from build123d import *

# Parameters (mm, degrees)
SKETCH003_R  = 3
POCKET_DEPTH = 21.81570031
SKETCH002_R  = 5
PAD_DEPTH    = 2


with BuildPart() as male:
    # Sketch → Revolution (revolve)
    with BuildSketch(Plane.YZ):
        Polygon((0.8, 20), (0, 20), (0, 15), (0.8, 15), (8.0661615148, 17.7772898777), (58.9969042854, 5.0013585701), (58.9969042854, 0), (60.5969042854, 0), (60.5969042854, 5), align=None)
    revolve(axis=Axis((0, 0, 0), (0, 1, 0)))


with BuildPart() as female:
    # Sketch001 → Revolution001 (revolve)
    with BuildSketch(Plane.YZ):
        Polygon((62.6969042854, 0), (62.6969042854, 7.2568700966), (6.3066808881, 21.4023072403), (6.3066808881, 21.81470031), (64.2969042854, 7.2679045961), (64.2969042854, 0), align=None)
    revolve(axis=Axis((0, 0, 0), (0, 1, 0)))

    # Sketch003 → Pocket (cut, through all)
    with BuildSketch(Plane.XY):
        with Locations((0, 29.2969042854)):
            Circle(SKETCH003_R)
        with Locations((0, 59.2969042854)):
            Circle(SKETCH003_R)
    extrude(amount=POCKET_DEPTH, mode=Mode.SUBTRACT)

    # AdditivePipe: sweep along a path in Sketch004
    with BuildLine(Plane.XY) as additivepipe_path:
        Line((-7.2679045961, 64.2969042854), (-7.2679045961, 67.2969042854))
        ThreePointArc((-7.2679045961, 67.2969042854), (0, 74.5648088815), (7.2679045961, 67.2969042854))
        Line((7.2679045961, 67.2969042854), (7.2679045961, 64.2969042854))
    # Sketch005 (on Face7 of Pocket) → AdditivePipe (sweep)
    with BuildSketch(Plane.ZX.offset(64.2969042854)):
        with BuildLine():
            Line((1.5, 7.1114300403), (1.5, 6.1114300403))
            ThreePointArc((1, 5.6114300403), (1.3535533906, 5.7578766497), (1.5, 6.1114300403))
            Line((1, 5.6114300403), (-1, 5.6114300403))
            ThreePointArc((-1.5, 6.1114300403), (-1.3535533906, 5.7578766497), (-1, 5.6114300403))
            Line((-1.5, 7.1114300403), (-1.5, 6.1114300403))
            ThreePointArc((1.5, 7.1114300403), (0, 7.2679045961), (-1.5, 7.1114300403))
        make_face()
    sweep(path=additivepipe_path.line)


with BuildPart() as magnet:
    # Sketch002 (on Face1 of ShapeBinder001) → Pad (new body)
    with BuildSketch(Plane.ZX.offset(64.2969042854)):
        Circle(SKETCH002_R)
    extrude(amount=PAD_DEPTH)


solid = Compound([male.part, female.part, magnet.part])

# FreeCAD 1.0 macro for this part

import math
import FreeCAD as App
import Part
import Sketcher

V = App.Vector

doc = App.newDocument("Part")
body = doc.addObject("PartDesign::Body", "Body")

# Sketch on YZ plane
sketch1 = doc.addObject("Sketcher::SketchObject", "Sketch")
body.addObject(sketch1)
sketch1.AttachmentSupport = (doc.YZ_Plane, [""])
sketch1.MapMode = "FlatFace"
sketch1.addGeometry([
    Part.LineSegment(V(0.8, 20, 0), V(0, 20, 0)),  # 0
    Part.LineSegment(V(0, 20, 0), V(0, 15, 0)),  # 1
    Part.LineSegment(V(0, 15, 0), V(0.8, 15, 0)),  # 2
    Part.LineSegment(V(0.8, 15, 0), V(8.1, 17.8, 0)),  # 3
    Part.LineSegment(V(8.1, 17.8, 0), V(59, 5, 0)),  # 4
    Part.LineSegment(V(59, 5, 0), V(59, 0, 0)),  # 5
    Part.LineSegment(V(59, 0, 0), V(60.6, 0, 0)),  # 6
    Part.LineSegment(V(60.6, 0, 0), V(60.6, 5, 0)),  # 7
    Part.LineSegment(V(60.6, 5, 0), V(0.8, 20, 0)),  # 8
], False)
sketch1.addConstraint([
    Sketcher.Constraint("Coincident", 0, 2, 1, 1),
    Sketcher.Constraint("Coincident", 1, 2, 2, 1),
    Sketcher.Constraint("Coincident", 2, 2, 3, 1),
    Sketcher.Constraint("Coincident", 3, 2, 4, 1),
    Sketcher.Constraint("Coincident", 4, 2, 5, 1),
    Sketcher.Constraint("Coincident", 5, 2, 6, 1),
    Sketcher.Constraint("Coincident", 6, 2, 7, 1),
    Sketcher.Constraint("Coincident", 7, 2, 8, 1),
    Sketcher.Constraint("Coincident", 8, 2, 0, 1),
    Sketcher.Constraint("Horizontal", 0),
    Sketcher.Constraint("Vertical", 1),
    Sketcher.Constraint("Horizontal", 2),
    Sketcher.Constraint("Vertical", 5),
    Sketcher.Constraint("Horizontal", 6),
    Sketcher.Constraint("Vertical", 7),
    Sketcher.Constraint("PointOnObject", 0, 2, -2),
    Sketcher.Constraint("PointOnObject", 5, 2, -1),
    Sketcher.Constraint("Parallel", 4, 8),
    Sketcher.Constraint("Vertical", 2, 2, 8, 2),
    Sketcher.Constraint("Equal", 1, 7),
    Sketcher.Constraint("DistanceY", 1, 2, 1, 1, 5.0),
    Sketcher.Constraint("DistanceX", 0, 2, 0, 1, 0.8),
    Sketcher.Constraint("DistanceX", 6, 1, 6, 2, 1.6),
    Sketcher.Constraint("DistanceY", -1, 1, 0, 2, 20.0),
    Sketcher.Constraint("DistanceY", 5, 2, 5, 1, 5.001359),
    Sketcher.Constraint("DistanceX", -1, 1, 3, 2, 8.066162),
    Sketcher.Constraint("DistanceY", -1, 1, 3, 2, 17.77729),
])
revolution = doc.addObject("PartDesign::Revolution", "Revolution")
body.addObject(revolution)
revolution.Profile = sketch1
revolution.ReferenceAxis = (sketch1, ["H_Axis"])
revolution.Angle = 360
body2 = doc.addObject("PartDesign::Body", "Body001")

# Sketch on YZ plane
sketch2 = doc.addObject("Sketcher::SketchObject", "Sketch001")
body2.addObject(sketch2)
sketch2.AttachmentSupport = (doc.getObject("YZ_Plane001"), [""])
sketch2.MapMode = "FlatFace"
sketch2.addGeometry([
    Part.LineSegment(V(62.696904, 7.25687, 0), V(62.696904, 0, 0)),  # 0
    Part.LineSegment(V(62.696904, 0, 0), V(64.296904, 0, 0)),  # 1
    Part.LineSegment(V(64.296904, 0, 0), V(64.296904, 7.267905, 0)),  # 2
    Part.LineSegment(V(64.296904, 7.267905, 0), V(6.306681, 21.8147, 0)),  # 3
    Part.LineSegment(V(6.306681, 21.8147, 0), V(6.306681, 21.402307, 0)),  # 4
    Part.LineSegment(V(6.306681, 21.402307, 0), V(62.696904, 7.25687, 0)),  # 5
], False)
sketch2.addConstraint([
    Sketcher.Constraint("Coincident", 0, 2, 1, 1),
    Sketcher.Constraint("Coincident", 1, 2, 2, 1),
    Sketcher.Constraint("Coincident", 2, 2, 3, 1),
    Sketcher.Constraint("Coincident", 3, 2, 4, 1),
    Sketcher.Constraint("Coincident", 4, 2, 5, 1),
    Sketcher.Constraint("Coincident", 5, 2, 0, 1),
    Sketcher.Constraint("Vertical", 0),
    Sketcher.Constraint("Horizontal", 1),
    Sketcher.Constraint("Vertical", 2),
    Sketcher.Constraint("Vertical", 4),
    Sketcher.Constraint("PointOnObject", 0, 2, -1),
    Sketcher.Constraint("DistanceX", 1, 1, 1, 2, 1.6),
    Sketcher.Constraint("DistanceY", 0, 2, 0, 1, 7.25687),
    Sketcher.Constraint("DistanceY", -1, 1, 3, 2, 21.8147),
    Sketcher.Constraint("DistanceY", 2, 1, 2, 2, 7.267905),
    Sketcher.Constraint("DistanceY", 4, 2, 4, 1, 0.412393),
    Sketcher.Constraint("DistanceX", -1, 1, 3, 2, 6.306681),
    Sketcher.Constraint("Distance", 3, 59.786916),
])
revolution2 = doc.addObject("PartDesign::Revolution", "Revolution001")
body2.addObject(revolution2)
revolution2.Profile = sketch2
revolution2.ReferenceAxis = (sketch2, ["H_Axis"])
revolution2.Angle = 360

# Sketch on XY plane
sketch3 = doc.addObject("Sketcher::SketchObject", "Sketch002")
body2.addObject(sketch3)
sketch3.AttachmentSupport = (doc.getObject("XY_Plane001"), [""])
sketch3.MapMode = "FlatFace"
sketch3.addGeometry([
    Part.Circle(V(0, 29.3, 0), V(0, 0, 1), 3),
    Part.Circle(V(0, 59.3, 0), V(0, 0, 1), 3),
], False)
sketch3.addConstraint([
    Sketcher.Constraint("Equal", 0, 1),
    Sketcher.Constraint("PointOnObject", 0, 3, -2),
    Sketcher.Constraint("PointOnObject", 1, 3, -2),
    Sketcher.Constraint("Diameter", 0, 6.0),
    Sketcher.Constraint("DistanceY", 0, 3, 1, 3, 30.0),
    Sketcher.Constraint("DistanceY", -1, 1, 0, 3, 29.296904),
])
pocket1 = doc.addObject("PartDesign::Pocket", "Pocket")
body2.addObject(pocket1)
pocket1.Profile = sketch3
pocket1.Type = "ThroughAll"
pocket1.Reversed = True

# Sketch on XZ plane
sketch4 = doc.addObject("Sketcher::SketchObject", "Sketch003")
body2.addObject(sketch4)
sketch4.AttachmentSupport = (doc.getObject("XZ_Plane001"), [""])
sketch4.MapMode = "FlatFace"
sketch4.AttachmentOffset = App.Placement(V(0, 0, -64.296904), App.Rotation())
sketch4.addGeometry([
    Part.LineSegment(V(6.1, 1.5, 0), V(7.1, 1.5, 0)),  # 0
    Part.ArcOfCircle(Part.Circle(V(0, 0, 0), V(0, 0, 1), 7.3), math.radians(-12), math.radians(12)),  # 1
    Part.LineSegment(V(7.1, -1.5, 0), V(6.1, -1.5, 0)),  # 2
    Part.ArcOfCircle(Part.Circle(V(6.1, -1, 0), V(0, 0, 1), 0.5), math.radians(180), math.radians(270)),  # 3
    Part.LineSegment(V(5.6, -1, 0), V(5.6, 1, 0)),  # 4
    Part.ArcOfCircle(Part.Circle(V(6.1, 1, 0), V(0, 0, 1), 0.5), math.radians(90), math.radians(180)),  # 5
], False)
sketch4.addConstraint([
    Sketcher.Constraint("Coincident", 0, 2, 1, 2),
    Sketcher.Constraint("Coincident", 1, 1, 2, 1),
    Sketcher.Constraint("Tangent", 2, 2, 3, 2),
    Sketcher.Constraint("Tangent", 3, 1, 4, 1),
    Sketcher.Constraint("Tangent", 4, 2, 5, 2),
    Sketcher.Constraint("Tangent", 5, 1, 0, 1),
    Sketcher.Constraint("Horizontal", 0),
    Sketcher.Constraint("Horizontal", 2),
    Sketcher.Constraint("Vertical", 4),
    Sketcher.Constraint("Coincident", 1, 3, -1, 1),
    Sketcher.Constraint("Equal", 3, 5),
    Sketcher.Constraint("Vertical", 0, 2, 1, 1),
    Sketcher.Constraint("Radius", 3, 0.5),
    Sketcher.Constraint("DistanceX", 0, 1, 0, 2, 1.0),
    Sketcher.Constraint("DistanceY", 4, 1, 4, 2, 2.0),
    Sketcher.Constraint("Radius", 1, 7.267905),
])

# Sketch on XY plane
sketch5 = doc.addObject("Sketcher::SketchObject", "Sketch004")
body2.addObject(sketch5)
sketch5.AttachmentSupport = (doc.getObject("XY_Plane001"), [""])
sketch5.MapMode = "FlatFace"
sketch5.addGeometry([
    Part.LineSegment(V(-7.3, 64.3, 0), V(-7.3, 67.3, 0)),
    Part.ArcOfCircle(Part.Circle(V(0, 67.3, 0), V(0, 0, 1), 7.3), math.radians(0), math.radians(180)),
    Part.LineSegment(V(7.3, 67.3, 0), V(7.3, 64.3, 0)),
], False)
sketch5.addConstraint([
    Sketcher.Constraint("Tangent", 0, 2, 1, 2),
    Sketcher.Constraint("Tangent", 1, 1, 2, 1),
    Sketcher.Constraint("Vertical", 0),
    Sketcher.Constraint("Vertical", 2),
    Sketcher.Constraint("Symmetric", 0, 1, 2, 2, -2),
    Sketcher.Constraint("DistanceY", 0, 1, 0, 2, 3.0),
    Sketcher.Constraint("Radius", 1, 7.267905),
    Sketcher.Constraint("DistanceY", -1, 1, 1, 3, 67.296904),
])
doc.recompute()

additivepipe = doc.addObject("PartDesign::AdditivePipe", "AdditivePipe")
body2.addObject(additivepipe)
additivepipe.Profile = sketch4
additivepipe.Spine = (sketch5, ["Edge1", "Edge2", "Edge3"])
body3 = doc.addObject("PartDesign::Body", "Body002")

# Sketch on XZ plane
sketch6 = doc.addObject("Sketcher::SketchObject", "Sketch005")
body3.addObject(sketch6)
sketch6.AttachmentSupport = (doc.getObject("XZ_Plane002"), [""])
sketch6.MapMode = "FlatFace"
sketch6.AttachmentOffset = App.Placement(V(0, 0, -64.296904), App.Rotation())
sketch6.addGeometry(Part.Circle(V(0, 0, 0), V(0, 0, 1), 5), False)
sketch6.addConstraint([
    Sketcher.Constraint("Coincident", 0, 3, -1, 1),
    Sketcher.Constraint("Diameter", 0, 10.0),
])
pad1 = doc.addObject("PartDesign::Pad", "Pad")
body3.addObject(pad1)
pad1.Profile = sketch6
pad1.Length = 2
pad1.Reversed = True

doc.recompute()
